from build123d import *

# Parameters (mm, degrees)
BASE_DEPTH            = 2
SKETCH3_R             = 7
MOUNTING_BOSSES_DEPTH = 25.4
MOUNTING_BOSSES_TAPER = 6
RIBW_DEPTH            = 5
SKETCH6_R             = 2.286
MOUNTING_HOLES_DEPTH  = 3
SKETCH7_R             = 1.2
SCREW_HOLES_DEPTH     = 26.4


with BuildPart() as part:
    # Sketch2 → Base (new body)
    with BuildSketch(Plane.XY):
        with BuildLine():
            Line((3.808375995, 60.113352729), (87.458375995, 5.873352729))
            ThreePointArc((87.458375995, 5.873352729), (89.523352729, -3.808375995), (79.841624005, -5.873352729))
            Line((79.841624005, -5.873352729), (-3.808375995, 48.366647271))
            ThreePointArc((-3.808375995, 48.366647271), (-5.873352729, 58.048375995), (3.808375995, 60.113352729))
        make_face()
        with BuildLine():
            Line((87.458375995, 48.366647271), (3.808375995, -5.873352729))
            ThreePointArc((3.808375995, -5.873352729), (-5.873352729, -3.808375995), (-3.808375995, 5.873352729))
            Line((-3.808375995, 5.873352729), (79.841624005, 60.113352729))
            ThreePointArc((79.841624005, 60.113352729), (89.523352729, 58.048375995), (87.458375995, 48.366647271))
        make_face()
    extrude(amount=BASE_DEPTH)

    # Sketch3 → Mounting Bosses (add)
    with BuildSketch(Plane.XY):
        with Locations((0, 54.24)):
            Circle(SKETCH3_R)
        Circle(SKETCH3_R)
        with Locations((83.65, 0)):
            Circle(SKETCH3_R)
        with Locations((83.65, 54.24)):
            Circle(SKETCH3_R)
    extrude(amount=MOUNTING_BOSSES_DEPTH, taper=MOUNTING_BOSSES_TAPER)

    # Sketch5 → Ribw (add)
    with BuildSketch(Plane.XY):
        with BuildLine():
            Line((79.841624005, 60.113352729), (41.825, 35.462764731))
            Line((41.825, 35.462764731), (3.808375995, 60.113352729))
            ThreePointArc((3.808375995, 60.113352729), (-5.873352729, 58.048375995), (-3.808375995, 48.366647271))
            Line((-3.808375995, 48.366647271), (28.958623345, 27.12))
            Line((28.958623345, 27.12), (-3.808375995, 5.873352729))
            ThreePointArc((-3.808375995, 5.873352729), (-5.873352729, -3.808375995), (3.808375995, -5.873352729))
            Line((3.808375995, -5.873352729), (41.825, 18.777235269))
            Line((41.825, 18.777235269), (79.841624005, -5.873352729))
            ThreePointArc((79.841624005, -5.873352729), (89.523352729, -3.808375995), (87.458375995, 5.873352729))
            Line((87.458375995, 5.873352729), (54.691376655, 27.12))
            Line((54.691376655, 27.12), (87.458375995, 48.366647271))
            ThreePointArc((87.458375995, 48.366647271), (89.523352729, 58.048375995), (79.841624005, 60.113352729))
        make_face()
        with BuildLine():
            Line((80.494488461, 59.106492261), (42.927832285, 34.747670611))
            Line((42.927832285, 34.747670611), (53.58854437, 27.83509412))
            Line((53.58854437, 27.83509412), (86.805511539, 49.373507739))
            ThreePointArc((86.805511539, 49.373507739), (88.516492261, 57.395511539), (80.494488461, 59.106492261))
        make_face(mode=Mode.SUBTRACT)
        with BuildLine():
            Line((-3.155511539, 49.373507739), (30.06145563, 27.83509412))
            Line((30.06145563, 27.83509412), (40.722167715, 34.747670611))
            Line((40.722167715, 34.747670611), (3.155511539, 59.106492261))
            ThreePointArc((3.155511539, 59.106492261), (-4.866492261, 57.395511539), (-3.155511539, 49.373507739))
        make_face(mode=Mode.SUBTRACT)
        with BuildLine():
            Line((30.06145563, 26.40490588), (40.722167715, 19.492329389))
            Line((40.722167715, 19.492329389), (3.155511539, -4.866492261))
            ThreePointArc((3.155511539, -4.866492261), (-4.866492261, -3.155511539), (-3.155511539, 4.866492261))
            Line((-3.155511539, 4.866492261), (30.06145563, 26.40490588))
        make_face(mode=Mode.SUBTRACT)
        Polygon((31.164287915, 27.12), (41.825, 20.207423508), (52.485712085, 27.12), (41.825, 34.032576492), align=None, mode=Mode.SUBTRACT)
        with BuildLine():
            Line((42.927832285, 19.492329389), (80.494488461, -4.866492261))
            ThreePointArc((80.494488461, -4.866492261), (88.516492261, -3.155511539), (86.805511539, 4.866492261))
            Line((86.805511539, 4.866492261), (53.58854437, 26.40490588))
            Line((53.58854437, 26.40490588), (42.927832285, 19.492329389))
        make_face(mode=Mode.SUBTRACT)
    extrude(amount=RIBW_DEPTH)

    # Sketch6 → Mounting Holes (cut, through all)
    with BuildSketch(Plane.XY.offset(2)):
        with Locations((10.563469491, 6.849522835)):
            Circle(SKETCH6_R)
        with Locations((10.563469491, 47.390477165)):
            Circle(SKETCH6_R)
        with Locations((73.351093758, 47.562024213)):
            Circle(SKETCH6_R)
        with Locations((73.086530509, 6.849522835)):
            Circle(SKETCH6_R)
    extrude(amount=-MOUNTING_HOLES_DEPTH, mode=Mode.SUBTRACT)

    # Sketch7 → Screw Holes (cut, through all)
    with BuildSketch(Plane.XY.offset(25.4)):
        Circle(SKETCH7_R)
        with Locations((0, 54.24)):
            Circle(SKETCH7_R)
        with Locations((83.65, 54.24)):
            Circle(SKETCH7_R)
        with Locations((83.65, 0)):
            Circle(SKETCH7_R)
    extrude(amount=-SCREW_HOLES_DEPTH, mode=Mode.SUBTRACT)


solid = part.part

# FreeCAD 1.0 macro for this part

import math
import FreeCAD as App
import Part
import Sketcher

doc = App.newDocument("Part")
body = doc.addObject("PartDesign::Body", "Body")

sketch1 = body.newObject("Sketcher::SketchObject", "Sketch")
sketch1.AttachmentSupport = (doc.getObject("XY_Plane"), [""])
sketch1.MapMode = "FlatFace"
sketch1.addGeometry(Part.ArcOfCircle(Part.Circle(App.Vector(0, 54.24, 0), App.Vector(0, 0, 1), 7), math.radians(57.039979), math.radians(237.039979)), False)
sketch1.addGeometry(Part.LineSegment(App.Vector(-3.808376, 48.366647, 0), App.Vector(28.958623, 27.12, 0)), False)
sketch1.addGeometry(Part.LineSegment(App.Vector(28.958623, 27.12, 0), App.Vector(-3.808376, 5.873353, 0)), False)
sketch1.addGeometry(Part.ArcOfCircle(Part.Circle(App.Vector(0, 0, 0), App.Vector(0, 0, 1), 7), math.radians(122.960021), math.radians(302.960021)), False)
sketch1.addGeometry(Part.LineSegment(App.Vector(3.808376, -5.873353, 0), App.Vector(41.825, 18.777235, 0)), False)
sketch1.addGeometry(Part.LineSegment(App.Vector(41.825, 18.777235, 0), App.Vector(79.841624, -5.873353, 0)), False)
sketch1.addGeometry(Part.ArcOfCircle(Part.Circle(App.Vector(83.65, 0, 0), App.Vector(0, 0, 1), 7), math.radians(-122.960021), math.radians(57.039979)), False)
sketch1.addGeometry(Part.LineSegment(App.Vector(87.458376, 5.873353, 0), App.Vector(54.691377, 27.12, 0)), False)
sketch1.addGeometry(Part.LineSegment(App.Vector(54.691377, 27.12, 0), App.Vector(87.458376, 48.366647, 0)), False)
sketch1.addGeometry(Part.ArcOfCircle(Part.Circle(App.Vector(83.65, 54.24, 0), App.Vector(0, 0, 1), 7), math.radians(-57.039979), math.radians(122.960021)), False)
sketch1.addGeometry(Part.LineSegment(App.Vector(79.841624, 60.113353, 0), App.Vector(41.825, 35.462765, 0)), False)
sketch1.addGeometry(Part.LineSegment(App.Vector(41.825, 35.462765, 0), App.Vector(3.808376, 60.113353, 0)), False)
sketch1.addConstraint(Sketcher.Constraint("Tangent", 0, 2, 1, 1))
sketch1.addConstraint(Sketcher.Constraint("Coincident", 1, 2, 2, 1))
sketch1.addConstraint(Sketcher.Constraint("Tangent", 2, 2, 3, 1))
sketch1.addConstraint(Sketcher.Constraint("Tangent", 3, 2, 4, 1))
sketch1.addConstraint(Sketcher.Constraint("Coincident", 4, 2, 5, 1))
sketch1.addConstraint(Sketcher.Constraint("Tangent", 5, 2, 6, 1))
sketch1.addConstraint(Sketcher.Constraint("Tangent", 6, 2, 7, 1))
sketch1.addConstraint(Sketcher.Constraint("Coincident", 7, 2, 8, 1))
sketch1.addConstraint(Sketcher.Constraint("Tangent", 8, 2, 9, 1))
sketch1.addConstraint(Sketcher.Constraint("Tangent", 9, 2, 10, 1))
sketch1.addConstraint(Sketcher.Constraint("Coincident", 10, 2, 11, 1))
sketch1.addConstraint(Sketcher.Constraint("Tangent", 11, 2, 0, 1))
sketch1.addConstraint(Sketcher.Constraint("Coincident", 3, 3, -1, 1))
sketch1.addConstraint(Sketcher.Constraint("Equal", 0, 3))
sketch1.addConstraint(Sketcher.Constraint("Equal", 3, 6))
sketch1.addConstraint(Sketcher.Constraint("Equal", 6, 9))
sketch1.addConstraint(Sketcher.Constraint("PointOnObject", 0, 3, -2))
sketch1.addConstraint(Sketcher.Constraint("PointOnObject", 6, 3, -1))
sketch1.addConstraint(Sketcher.Constraint("Parallel", 2, 4))
sketch1.addConstraint(Sketcher.Constraint("Parallel", 1, 5))
sketch1.addConstraint(Sketcher.Constraint("Parallel", 5, 7))
sketch1.addConstraint(Sketcher.Constraint("Parallel", 4, 8))
sketch1.addConstraint(Sketcher.Constraint("Parallel", 8, 10))
sketch1.addConstraint(Sketcher.Constraint("Parallel", 7, 11))
sketch1.addConstraint(Sketcher.Constraint("Horizontal", 0, 3, 9, 3))
sketch1.addConstraint(Sketcher.Constraint("Horizontal", 3, 2, 5, 2))
sketch1.addConstraint(Sketcher.Constraint("Horizontal", 1, 2, 7, 2))
sketch1.addConstraint(Sketcher.Constraint("Radius", 0, 7.0))
sketch1.addConstraint(Sketcher.Constraint("DistanceY", -1, 1, 0, 3, 54.24))
sketch1.addConstraint(Sketcher.Constraint("DistanceX", -1, 1, 6, 3, 83.65))
sketch1.addConstraint(Sketcher.Constraint("DistanceX", 0, 2, 1, 2, 32.766999))
pad1 = body.newObject("PartDesign::Pad", "Pad")
pad1.Profile = sketch1
pad1.Length = 2

sketch2 = body.newObject("Sketcher::SketchObject", "Sketch001")
sketch2.AttachmentSupport = (doc.getObject("XY_Plane"), [""])
sketch2.MapMode = "FlatFace"
sketch2.addGeometry(Part.Circle(App.Vector(0, 54.24, 0), App.Vector(0, 0, 1), 7), False)
sketch2.addGeometry(Part.Circle(App.Vector(0, 0, 0), App.Vector(0, 0, 1), 7), False)
sketch2.addGeometry(Part.Circle(App.Vector(83.65, 0, 0), App.Vector(0, 0, 1), 7), False)
sketch2.addGeometry(Part.Circle(App.Vector(83.65, 54.24, 0), App.Vector(0, 0, 1), 7), False)
sketch2.addConstraint(Sketcher.Constraint("Coincident", 1, 3, -1, 1))
sketch2.addConstraint(Sketcher.Constraint("Equal", 0, 1))
sketch2.addConstraint(Sketcher.Constraint("Equal", 1, 2))
sketch2.addConstraint(Sketcher.Constraint("Equal", 2, 3))
sketch2.addConstraint(Sketcher.Constraint("PointOnObject", 0, 3, -2))
sketch2.addConstraint(Sketcher.Constraint("PointOnObject", 2, 3, -1))
sketch2.addConstraint(Sketcher.Constraint("Horizontal", 0, 3, 3, 3))
sketch2.addConstraint(Sketcher.Constraint("Vertical", 2, 3, 3, 3))
sketch2.addConstraint(Sketcher.Constraint("Diameter", 0, 14.0))
sketch2.addConstraint(Sketcher.Constraint("DistanceY", -1, 1, 0, 3, 54.24))
sketch2.addConstraint(Sketcher.Constraint("DistanceX", -1, 1, 2, 3, 83.65))
pad2 = body.newObject("PartDesign::Pad", "Pad001")
pad2.Profile = sketch2
pad2.Length = 25.4
pad2.TaperAngle = -6

sketch3 = body.newObject("Sketcher::SketchObject", "Sketch002")
sketch3.AttachmentSupport = (doc.getObject("XY_Plane"), [""])
sketch3.MapMode = "FlatFace"
sketch3.addGeometry(Part.LineSegment(App.Vector(79.841624, 60.113353, 0), App.Vector(41.825, 35.462765, 0)), False)
sketch3.addGeometry(Part.LineSegment(App.Vector(41.825, 35.462765, 0), App.Vector(3.808376, 60.113353, 0)), False)
sketch3.addGeometry(Part.ArcOfCircle(Part.Circle(App.Vector(0, 54.24, 0), App.Vector(0, 0, 1), 7), math.radians(57.039979), math.radians(237.039979)), False)
sketch3.addGeometry(Part.LineSegment(App.Vector(-3.808376, 48.366647, 0), App.Vector(28.958623, 27.12, 0)), False)
sketch3.addGeometry(Part.LineSegment(App.Vector(28.958623, 27.12, 0), App.Vector(-3.808376, 5.873353, 0)), False)
sketch3.addGeometry(Part.ArcOfCircle(Part.Circle(App.Vector(0, 0, 0), App.Vector(0, 0, 1), 7), math.radians(122.960021), math.radians(302.960021)), False)
sketch3.addGeometry(Part.LineSegment(App.Vector(3.808376, -5.873353, 0), App.Vector(41.825, 18.777235, 0)), False)
sketch3.addGeometry(Part.LineSegment(App.Vector(41.825, 18.777235, 0), App.Vector(79.841624, -5.873353, 0)), False)
sketch3.addGeometry(Part.ArcOfCircle(Part.Circle(App.Vector(83.65, 0, 0), App.Vector(0, 0, 1), 7), math.radians(-122.960021), math.radians(57.039979)), False)
sketch3.addGeometry(Part.LineSegment(App.Vector(87.458376, 5.873353, 0), App.Vector(54.691377, 27.12, 0)), False)
sketch3.addGeometry(Part.LineSegment(App.Vector(54.691377, 27.12, 0), App.Vector(87.458376, 48.366647, 0)), False)
sketch3.addGeometry(Part.ArcOfCircle(Part.Circle(App.Vector(83.65, 54.24, 0), App.Vector(0, 0, 1), 7), math.radians(-57.039979), math.radians(122.960021)), False)
sketch3.addGeometry(Part.LineSegment(App.Vector(-3.155512, 4.866492, 0), App.Vector(30.061456, 26.404906, 0)), False)
sketch3.addGeometry(Part.LineSegment(App.Vector(30.061456, 26.404906, 0), App.Vector(40.722168, 19.492329, 0)), False)
sketch3.addGeometry(Part.LineSegment(App.Vector(40.722168, 19.492329, 0), App.Vector(3.155512, -4.866492, 0)), False)
sketch3.addGeometry(Part.ArcOfCircle(Part.Circle(App.Vector(0, 0, 0), App.Vector(0, 0, 1), 5.8), math.radians(122.960021), math.radians(302.960021)), False)
sketch3.addGeometry(Part.LineSegment(App.Vector(80.494488, -4.866492, 0), App.Vector(42.927832, 19.492329, 0)), False)
sketch3.addGeometry(Part.LineSegment(App.Vector(42.927832, 19.492329, 0), App.Vector(53.588544, 26.404906, 0)), False)
sketch3.addGeometry(Part.LineSegment(App.Vector(53.588544, 26.404906, 0), App.Vector(86.805512, 4.866492, 0)), False)
sketch3.addGeometry(Part.ArcOfCircle(Part.Circle(App.Vector(83.65, 0, 0), App.Vector(0, 0, 1), 5.8), math.radians(-122.960021), math.radians(57.039979)), False)
sketch3.addGeometry(Part.LineSegment(App.Vector(30.061456, 27.835094, 0), App.Vector(-3.155512, 49.373508, 0)), False)
sketch3.addGeometry(Part.ArcOfCircle(Part.Circle(App.Vector(0, 54.24, 0), App.Vector(0, 0, 1), 5.8), math.radians(57.039979), math.radians(237.039979)), False)
sketch3.addGeometry(Part.LineSegment(App.Vector(3.155512, 59.106492, 0), App.Vector(40.722168, 34.747671, 0)), False)
sketch3.addGeometry(Part.LineSegment(App.Vector(40.722168, 34.747671, 0), App.Vector(30.061456, 27.835094, 0)), False)
sketch3.addGeometry(Part.LineSegment(App.Vector(41.825, 20.207424, 0), App.Vector(31.164288, 27.12, 0)), False)
sketch3.addGeometry(Part.LineSegment(App.Vector(31.164288, 27.12, 0), App.Vector(41.825, 34.032576, 0)), False)
sketch3.addGeometry(Part.LineSegment(App.Vector(41.825, 34.032576, 0), App.Vector(52.485712, 27.12, 0)), False)
sketch3.addGeometry(Part.LineSegment(App.Vector(52.485712, 27.12, 0), App.Vector(41.825, 20.207424, 0)), False)
sketch3.addGeometry(Part.LineSegment(App.Vector(42.927832, 34.747671, 0), App.Vector(80.494488, 59.106492, 0)), False)
sketch3.addGeometry(Part.ArcOfCircle(Part.Circle(App.Vector(83.65, 54.24, 0), App.Vector(0, 0, 1), 5.8), math.radians(-57.039979), math.radians(122.960021)), False)
sketch3.addGeometry(Part.LineSegment(App.Vector(86.805512, 49.373508, 0), App.Vector(53.588544, 27.835094, 0)), False)
sketch3.addGeometry(Part.LineSegment(App.Vector(53.588544, 27.835094, 0), App.Vector(42.927832, 34.747671, 0)), False)
sketch3.addConstraint(Sketcher.Constraint("Coincident", 0, 2, 1, 1))
sketch3.addConstraint(Sketcher.Constraint("Tangent", 1, 2, 2, 1))
sketch3.addConstraint(Sketcher.Constraint("Tangent", 2, 2, 3, 1))
sketch3.addConstraint(Sketcher.Constraint("Coincident", 3, 2, 4, 1))
sketch3.addConstraint(Sketcher.Constraint("Tangent", 4, 2, 5, 1))
sketch3.addConstraint(Sketcher.Constraint("Tangent", 5, 2, 6, 1))
sketch3.addConstraint(Sketcher.Constraint("Coincident", 6, 2, 7, 1))
sketch3.addConstraint(Sketcher.Constraint("Tangent", 7, 2, 8, 1))
sketch3.addConstraint(Sketcher.Constraint("Tangent", 8, 2, 9, 1))
sketch3.addConstraint(Sketcher.Constraint("Coincident", 9, 2, 10, 1))
sketch3.addConstraint(Sketcher.Constraint("Tangent", 10, 2, 11, 1))
sketch3.addConstraint(Sketcher.Constraint("Tangent", 11, 2, 0, 1))
sketch3.addConstraint(Sketcher.Constraint("Coincident", 12, 2, 13, 1))
sketch3.addConstraint(Sketcher.Constraint("Coincident", 13, 2, 14, 1))
sketch3.addConstraint(Sketcher.Constraint("Tangent", 14, 2, 15, 2))
sketch3.addConstraint(Sketcher.Constraint("Tangent", 15, 1, 12, 1))
sketch3.addConstraint(Sketcher.Constraint("Coincident", 16, 2, 17, 1))
sketch3.addConstraint(Sketcher.Constraint("Coincident", 17, 2, 18, 1))
sketch3.addConstraint(Sketcher.Constraint("Tangent", 18, 2, 19, 2))
sketch3.addConstraint(Sketcher.Constraint("Tangent", 19, 1, 16, 1))
sketch3.addConstraint(Sketcher.Constraint("Tangent", 20, 2, 21, 2))
sketch3.addConstraint(Sketcher.Constraint("Tangent", 21, 1, 22, 1))
sketch3.addConstraint(Sketcher.Constraint("Coincident", 22, 2, 23, 1))
sketch3.addConstraint(Sketcher.Constraint("Coincident", 23, 2, 20, 1))
sketch3.addConstraint(Sketcher.Constraint("Coincident", 24, 2, 25, 1))
sketch3.addConstraint(Sketcher.Constraint("Coincident", 25, 2, 26, 1))
sketch3.addConstraint(Sketcher.Constraint("Coincident", 26, 2, 27, 1))
sketch3.addConstraint(Sketcher.Constraint("Coincident", 27, 2, 24, 1))
sketch3.addConstraint(Sketcher.Constraint("Tangent", 28, 2, 29, 2))
sketch3.addConstraint(Sketcher.Constraint("Tangent", 29, 1, 30, 1))
sketch3.addConstraint(Sketcher.Constraint("Coincident", 30, 2, 31, 1))
sketch3.addConstraint(Sketcher.Constraint("Coincident", 31, 2, 28, 1))
sketch3.addConstraint(Sketcher.Constraint("Coincident", 5, 3, -1, 1))
sketch3.addConstraint(Sketcher.Constraint("Coincident", 15, 3, -1, 1))
sketch3.addConstraint(Sketcher.Constraint("Coincident", 19, 3, 8, 3))
sketch3.addConstraint(Sketcher.Constraint("Coincident", 21, 3, 2, 3))
sketch3.addConstraint(Sketcher.Constraint("Coincident", 29, 3, 11, 3))
sketch3.addConstraint(Sketcher.Constraint("Equal", 2, 5))
sketch3.addConstraint(Sketcher.Constraint("Equal", 5, 8))
sketch3.addConstraint(Sketcher.Constraint("Equal", 8, 11))
sketch3.addConstraint(Sketcher.Constraint("Equal", 15, 19))
sketch3.addConstraint(Sketcher.Constraint("Equal", 19, 21))
sketch3.addConstraint(Sketcher.Constraint("Equal", 21, 29))
sketch3.addConstraint(Sketcher.Constraint("PointOnObject", 2, 3, -2))
sketch3.addConstraint(Sketcher.Constraint("PointOnObject", 8, 3, -1))
sketch3.addConstraint(Sketcher.Constraint("Parallel", 1, 3))
sketch3.addConstraint(Sketcher.Constraint("Parallel", 0, 4))
sketch3.addConstraint(Sketcher.Constraint("Parallel", 4, 6))
sketch3.addConstraint(Sketcher.Constraint("Parallel", 3, 7))
sketch3.addConstraint(Sketcher.Constraint("Parallel", 7, 9))
sketch3.addConstraint(Sketcher.Constraint("Parallel", 6, 10))
sketch3.addConstraint(Sketcher.Constraint("Parallel", 10, 12))
sketch3.addConstraint(Sketcher.Constraint("Parallel", 9, 13))
sketch3.addConstraint(Sketcher.Constraint("Parallel", 12, 14))
sketch3.addConstraint(Sketcher.Constraint("Parallel", 13, 16))
sketch3.addConstraint(Sketcher.Constraint("Parallel", 14, 17))
sketch3.addConstraint(Sketcher.Constraint("Parallel", 16, 18))
sketch3.addConstraint(Sketcher.Constraint("Parallel", 18, 20))
sketch3.addConstraint(Sketcher.Constraint("Parallel", 20, 22))
sketch3.addConstraint(Sketcher.Constraint("Parallel", 17, 23))
sketch3.addConstraint(Sketcher.Constraint("Parallel", 22, 24))
sketch3.addConstraint(Sketcher.Constraint("Parallel", 23, 25))
sketch3.addConstraint(Sketcher.Constraint("Parallel", 24, 26))
sketch3.addConstraint(Sketcher.Constraint("Parallel", 25, 27))
sketch3.addConstraint(Sketcher.Constraint("Parallel", 27, 28))
sketch3.addConstraint(Sketcher.Constraint("Parallel", 28, 30))
sketch3.addConstraint(Sketcher.Constraint("Parallel", 26, 31))
sketch3.addConstraint(Sketcher.Constraint("Horizontal", 2, 3, 11, 3))
sketch3.addConstraint(Sketcher.Constraint("Horizontal", 5, 2, 7, 2))
sketch3.addConstraint(Sketcher.Constraint("Horizontal", 3, 2, 9, 2))
sketch3.addConstraint(Sketcher.Constraint("Horizontal", 13, 2, 16, 2))
sketch3.addConstraint(Sketcher.Constraint("Horizontal", 9, 2, 24, 2))
sketch3.addConstraint(Sketcher.Constraint("Horizontal", 24, 2, 26, 2))
sketch3.addConstraint(Sketcher.Constraint("Horizontal", 23, 2, 30, 2))
sketch3.addConstraint(Sketcher.Constraint("Vertical", 13, 2, 22, 2))
sketch3.addConstraint(Sketcher.Constraint("Vertical", 6, 2, 25, 2))
sketch3.addConstraint(Sketcher.Constraint("Equal", 23, 24))
sketch3.addConstraint(Sketcher.Constraint("Radius", 2, 7.0))
sketch3.addConstraint(Sketcher.Constraint("Radius", 15, 5.8))
sketch3.addConstraint(Sketcher.Constraint("DistanceY", -1, 1, 2, 3, 54.24))
sketch3.addConstraint(Sketcher.Constraint("DistanceX", -1, 1, 8, 3, 83.65))
sketch3.addConstraint(Sketcher.Constraint("DistanceX", 2, 2, 3, 2, 32.766999))
sketch3.addConstraint(Sketcher.Constraint("DistanceY", -1, 1, 13, 2, 19.492329))
pad3 = body.newObject("PartDesign::Pad", "Pad002")
pad3.Profile = sketch3
pad3.Length = 5

sketch4 = body.newObject("Sketcher::SketchObject", "Sketch003")
sketch4.AttachmentSupport = (doc.getObject("XY_Plane"), [""])
sketch4.MapMode = "FlatFace"
sketch4.AttachmentOffset = App.Placement(App.Vector(0, 0, 2), App.Rotation())
sketch4.addGeometry(Part.Circle(App.Vector(10.563469, 6.849523, 0), App.Vector(0, 0, 1), 2.286), False)
sketch4.addGeometry(Part.Circle(App.Vector(10.563469, 47.390477, 0), App.Vector(0, 0, 1), 2.286), False)
sketch4.addGeometry(Part.Circle(App.Vector(73.351094, 47.562024, 0), App.Vector(0, 0, 1), 2.286), False)
sketch4.addGeometry(Part.Circle(App.Vector(73.086531, 6.849523, 0), App.Vector(0, 0, 1), 2.286), False)
sketch4.addConstraint(Sketcher.Constraint("Equal", 0, 1))
sketch4.addConstraint(Sketcher.Constraint("Equal", 1, 2))
sketch4.addConstraint(Sketcher.Constraint("Equal", 2, 3))
sketch4.addConstraint(Sketcher.Constraint("Horizontal", 0, 3, 3, 3))
sketch4.addConstraint(Sketcher.Constraint("Vertical", 0, 3, 1, 3))
sketch4.addConstraint(Sketcher.Constraint("Diameter", 0, 4.572))
sketch4.addConstraint(Sketcher.Constraint("DistanceY", 0, 3, 2, 3, 40.712501))
sketch4.addConstraint(Sketcher.Constraint("DistanceX", -1, 1, 0, 3, 10.563469))
sketch4.addConstraint(Sketcher.Constraint("DistanceX", -1, 1, 3, 3, 73.086531))
sketch4.addConstraint(Sketcher.Constraint("DistanceY", -1, 1, 0, 3, 6.849523))
sketch4.addConstraint(Sketcher.Constraint("DistanceY", -1, 1, 1, 3, 47.390477))
sketch4.addConstraint(Sketcher.Constraint("DistanceX", -1, 1, 2, 3, 73.351094))
pocket1 = body.newObject("PartDesign::Pocket", "Pocket")
pocket1.Profile = sketch4
pocket1.Type = "ThroughAll"

sketch5 = body.newObject("Sketcher::SketchObject", "Sketch004")
sketch5.AttachmentSupport = (doc.getObject("XY_Plane"), [""])
sketch5.MapMode = "FlatFace"
sketch5.AttachmentOffset = App.Placement(App.Vector(0, 0, 25.4), App.Rotation())
sketch5.addGeometry(Part.Circle(App.Vector(0, 0, 0), App.Vector(0, 0, 1), 1.2), False)
sketch5.addGeometry(Part.Circle(App.Vector(0, 54.24, 0), App.Vector(0, 0, 1), 1.2), False)
sketch5.addGeometry(Part.Circle(App.Vector(83.65, 54.24, 0), App.Vector(0, 0, 1), 1.2), False)
sketch5.addGeometry(Part.Circle(App.Vector(83.65, 0, 0), App.Vector(0, 0, 1), 1.2), False)
sketch5.addConstraint(Sketcher.Constraint("Coincident", 0, 3, -1, 1))
sketch5.addConstraint(Sketcher.Constraint("Equal", 0, 1))
sketch5.addConstraint(Sketcher.Constraint("Equal", 1, 2))
sketch5.addConstraint(Sketcher.Constraint("Equal", 2, 3))
sketch5.addConstraint(Sketcher.Constraint("PointOnObject", 1, 3, -2))
sketch5.addConstraint(Sketcher.Constraint("PointOnObject", 3, 3, -1))
sketch5.addConstraint(Sketcher.Constraint("Horizontal", 1, 3, 2, 3))
sketch5.addConstraint(Sketcher.Constraint("Vertical", 2, 3, 3, 3))
sketch5.addConstraint(Sketcher.Constraint("Diameter", 0, 2.4))
sketch5.addConstraint(Sketcher.Constraint("DistanceY", -1, 1, 1, 3, 54.24))
sketch5.addConstraint(Sketcher.Constraint("DistanceX", -1, 1, 2, 3, 83.65))
pocket2 = body.newObject("PartDesign::Pocket", "Pocket001")
pocket2.Profile = sketch5
pocket2.Type = "ThroughAll"

doc.recompute()
